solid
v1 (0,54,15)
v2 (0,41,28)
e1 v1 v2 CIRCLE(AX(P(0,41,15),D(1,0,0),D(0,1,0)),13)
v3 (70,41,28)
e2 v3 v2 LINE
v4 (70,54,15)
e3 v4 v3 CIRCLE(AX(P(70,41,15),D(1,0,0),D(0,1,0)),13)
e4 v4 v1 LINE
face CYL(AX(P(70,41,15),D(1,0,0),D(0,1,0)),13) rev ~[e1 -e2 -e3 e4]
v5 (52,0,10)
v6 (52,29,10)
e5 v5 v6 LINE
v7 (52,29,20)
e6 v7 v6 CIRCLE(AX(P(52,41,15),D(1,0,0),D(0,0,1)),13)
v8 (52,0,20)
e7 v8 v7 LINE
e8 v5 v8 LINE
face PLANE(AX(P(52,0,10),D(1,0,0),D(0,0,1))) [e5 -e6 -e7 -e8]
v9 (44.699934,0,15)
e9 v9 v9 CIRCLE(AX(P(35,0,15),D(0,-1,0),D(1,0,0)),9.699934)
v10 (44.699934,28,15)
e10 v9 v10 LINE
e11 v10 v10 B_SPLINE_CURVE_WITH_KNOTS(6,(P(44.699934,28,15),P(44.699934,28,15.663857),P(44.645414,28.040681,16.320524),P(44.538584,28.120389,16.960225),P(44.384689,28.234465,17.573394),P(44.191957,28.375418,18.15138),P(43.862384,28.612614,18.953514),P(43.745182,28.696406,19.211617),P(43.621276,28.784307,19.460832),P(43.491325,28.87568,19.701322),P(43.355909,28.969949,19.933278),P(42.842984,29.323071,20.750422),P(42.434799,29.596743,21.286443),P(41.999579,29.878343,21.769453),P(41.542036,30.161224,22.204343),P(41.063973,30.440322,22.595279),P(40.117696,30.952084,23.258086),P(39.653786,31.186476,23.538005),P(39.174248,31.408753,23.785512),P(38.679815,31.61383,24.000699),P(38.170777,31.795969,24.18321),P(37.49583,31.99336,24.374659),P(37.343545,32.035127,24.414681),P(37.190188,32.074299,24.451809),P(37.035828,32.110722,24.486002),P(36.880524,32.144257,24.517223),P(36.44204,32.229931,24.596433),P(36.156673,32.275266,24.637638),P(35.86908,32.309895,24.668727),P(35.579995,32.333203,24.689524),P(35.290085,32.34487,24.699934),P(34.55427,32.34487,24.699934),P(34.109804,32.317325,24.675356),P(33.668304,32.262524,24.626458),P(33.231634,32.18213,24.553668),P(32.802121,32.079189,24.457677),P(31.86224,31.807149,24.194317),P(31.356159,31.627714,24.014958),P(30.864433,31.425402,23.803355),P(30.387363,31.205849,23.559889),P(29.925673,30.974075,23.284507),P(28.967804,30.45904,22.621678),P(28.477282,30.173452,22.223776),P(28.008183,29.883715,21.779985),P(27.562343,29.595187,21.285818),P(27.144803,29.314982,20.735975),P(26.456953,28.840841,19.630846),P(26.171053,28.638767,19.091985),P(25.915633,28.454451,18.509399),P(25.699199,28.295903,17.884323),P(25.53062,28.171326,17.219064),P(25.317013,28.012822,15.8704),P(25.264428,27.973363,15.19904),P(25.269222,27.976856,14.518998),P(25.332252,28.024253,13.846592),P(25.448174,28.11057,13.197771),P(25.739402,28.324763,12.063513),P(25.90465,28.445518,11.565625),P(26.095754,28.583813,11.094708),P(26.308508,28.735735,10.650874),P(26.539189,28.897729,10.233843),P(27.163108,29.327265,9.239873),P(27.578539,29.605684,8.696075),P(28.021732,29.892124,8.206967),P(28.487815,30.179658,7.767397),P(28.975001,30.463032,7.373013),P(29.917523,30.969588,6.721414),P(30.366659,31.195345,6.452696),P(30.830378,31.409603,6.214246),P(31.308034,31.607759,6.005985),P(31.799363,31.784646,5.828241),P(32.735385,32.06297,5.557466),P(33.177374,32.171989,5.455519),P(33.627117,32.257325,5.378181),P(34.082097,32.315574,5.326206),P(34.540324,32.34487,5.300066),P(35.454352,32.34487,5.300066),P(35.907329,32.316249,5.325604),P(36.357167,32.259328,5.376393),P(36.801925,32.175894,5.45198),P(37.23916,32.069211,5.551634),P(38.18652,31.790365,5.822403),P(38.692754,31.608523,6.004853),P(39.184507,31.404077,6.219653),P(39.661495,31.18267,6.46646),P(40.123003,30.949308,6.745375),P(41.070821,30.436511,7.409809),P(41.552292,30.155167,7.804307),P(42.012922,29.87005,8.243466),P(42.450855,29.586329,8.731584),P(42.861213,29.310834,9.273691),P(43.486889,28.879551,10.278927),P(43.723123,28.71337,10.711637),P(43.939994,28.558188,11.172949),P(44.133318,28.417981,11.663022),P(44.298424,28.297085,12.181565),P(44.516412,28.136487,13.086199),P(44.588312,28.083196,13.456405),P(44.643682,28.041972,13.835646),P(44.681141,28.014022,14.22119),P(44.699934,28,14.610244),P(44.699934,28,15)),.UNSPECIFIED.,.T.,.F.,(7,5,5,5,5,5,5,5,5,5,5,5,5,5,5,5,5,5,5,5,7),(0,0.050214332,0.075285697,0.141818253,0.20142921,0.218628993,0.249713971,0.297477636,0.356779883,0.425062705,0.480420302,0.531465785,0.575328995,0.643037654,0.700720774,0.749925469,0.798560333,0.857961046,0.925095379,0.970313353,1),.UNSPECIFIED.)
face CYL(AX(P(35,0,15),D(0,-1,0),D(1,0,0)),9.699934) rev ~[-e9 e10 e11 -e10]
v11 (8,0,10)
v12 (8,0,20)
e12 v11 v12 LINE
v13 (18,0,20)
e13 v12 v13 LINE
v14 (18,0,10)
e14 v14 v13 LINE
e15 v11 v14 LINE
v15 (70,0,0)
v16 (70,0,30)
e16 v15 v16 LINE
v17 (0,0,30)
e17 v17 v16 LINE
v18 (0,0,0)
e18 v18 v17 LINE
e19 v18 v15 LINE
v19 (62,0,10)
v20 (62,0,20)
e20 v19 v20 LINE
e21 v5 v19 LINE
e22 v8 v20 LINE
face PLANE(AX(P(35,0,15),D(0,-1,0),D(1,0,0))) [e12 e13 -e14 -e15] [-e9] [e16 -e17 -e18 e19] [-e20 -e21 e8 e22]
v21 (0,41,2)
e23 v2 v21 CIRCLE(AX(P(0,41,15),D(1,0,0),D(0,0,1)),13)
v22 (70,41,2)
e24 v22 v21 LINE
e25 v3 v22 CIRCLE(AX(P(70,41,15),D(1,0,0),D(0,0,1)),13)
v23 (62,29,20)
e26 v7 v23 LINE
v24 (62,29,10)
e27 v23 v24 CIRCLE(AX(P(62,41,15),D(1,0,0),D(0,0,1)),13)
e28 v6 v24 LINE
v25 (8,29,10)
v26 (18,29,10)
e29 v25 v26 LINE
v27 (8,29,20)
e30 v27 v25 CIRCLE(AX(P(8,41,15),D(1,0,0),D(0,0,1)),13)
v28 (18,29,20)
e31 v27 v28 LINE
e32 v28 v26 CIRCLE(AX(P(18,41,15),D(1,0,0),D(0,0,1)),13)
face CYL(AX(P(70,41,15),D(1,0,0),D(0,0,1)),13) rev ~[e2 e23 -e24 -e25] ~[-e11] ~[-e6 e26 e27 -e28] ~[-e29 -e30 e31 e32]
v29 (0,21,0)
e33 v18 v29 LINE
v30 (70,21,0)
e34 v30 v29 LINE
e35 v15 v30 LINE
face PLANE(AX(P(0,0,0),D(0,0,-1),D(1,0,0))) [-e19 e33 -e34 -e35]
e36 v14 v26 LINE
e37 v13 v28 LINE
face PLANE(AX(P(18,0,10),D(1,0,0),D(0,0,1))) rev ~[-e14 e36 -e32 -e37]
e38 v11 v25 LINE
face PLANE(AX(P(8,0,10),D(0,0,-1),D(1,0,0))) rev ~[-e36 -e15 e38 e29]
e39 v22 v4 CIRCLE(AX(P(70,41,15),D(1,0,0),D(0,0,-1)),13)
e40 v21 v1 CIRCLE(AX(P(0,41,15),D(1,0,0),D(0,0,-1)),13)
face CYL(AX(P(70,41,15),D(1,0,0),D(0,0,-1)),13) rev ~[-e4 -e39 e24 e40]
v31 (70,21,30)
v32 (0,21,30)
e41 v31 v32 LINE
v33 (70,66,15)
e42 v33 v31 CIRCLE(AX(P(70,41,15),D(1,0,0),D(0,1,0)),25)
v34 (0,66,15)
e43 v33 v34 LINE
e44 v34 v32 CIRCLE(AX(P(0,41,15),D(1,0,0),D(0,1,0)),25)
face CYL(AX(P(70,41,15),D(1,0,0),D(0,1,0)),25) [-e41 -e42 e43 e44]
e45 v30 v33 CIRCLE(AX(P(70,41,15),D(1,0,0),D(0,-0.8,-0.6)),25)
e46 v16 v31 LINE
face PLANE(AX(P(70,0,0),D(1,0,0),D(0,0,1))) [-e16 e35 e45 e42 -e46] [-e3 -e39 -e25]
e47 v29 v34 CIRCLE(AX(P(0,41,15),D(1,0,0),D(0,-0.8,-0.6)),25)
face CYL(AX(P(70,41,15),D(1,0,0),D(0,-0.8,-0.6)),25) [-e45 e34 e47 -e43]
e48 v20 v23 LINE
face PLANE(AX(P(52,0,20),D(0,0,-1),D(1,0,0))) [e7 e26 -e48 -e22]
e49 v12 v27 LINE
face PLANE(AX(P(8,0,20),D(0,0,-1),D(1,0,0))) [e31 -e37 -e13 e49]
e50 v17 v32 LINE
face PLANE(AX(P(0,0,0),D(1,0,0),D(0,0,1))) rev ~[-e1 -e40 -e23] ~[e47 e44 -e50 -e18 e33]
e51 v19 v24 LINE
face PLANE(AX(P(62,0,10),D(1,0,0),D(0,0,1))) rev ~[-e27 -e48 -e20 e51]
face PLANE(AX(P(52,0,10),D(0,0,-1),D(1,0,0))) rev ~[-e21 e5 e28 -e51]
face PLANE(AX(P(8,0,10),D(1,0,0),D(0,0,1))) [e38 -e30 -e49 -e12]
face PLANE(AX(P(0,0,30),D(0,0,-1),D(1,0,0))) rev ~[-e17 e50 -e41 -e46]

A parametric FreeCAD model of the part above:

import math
import FreeCAD as App
import Part
import Sketcher

V = App.Vector


def add_polygon(sketch, points):
    """Adds a closed chain of lines whose ends are joined by coincident constraints."""
    first, n = sketch.GeometryCount, len(points)
    for a, b in zip(points, points[1:] + points[:1]):
        sketch.addGeometry(Part.LineSegment(App.Vector(*a, 0), App.Vector(*b, 0)), False)
    for i in range(n):
        sketch.addConstraint(Sketcher.Constraint("Coincident", first + i, 2, first + (i + 1) % n, 1))

doc = App.newDocument("Part")
body = doc.addObject("PartDesign::Body", "Body")

sketch1 = doc.addObject("Sketcher::SketchObject", "Sketch")
body.addObject(sketch1)
sketch1.AttachmentSupport = (doc.XZ_Plane, [""])
sketch1.MapMode = "FlatFace"
add_polygon(sketch1, [(0, 30), (0, 0), (70, 0), (70, 30)])
sketch1.addConstraint([
    Sketcher.Constraint("Vertical", 0),
    Sketcher.Constraint("Horizontal", 1),
    Sketcher.Constraint("Vertical", 2),
    Sketcher.Constraint("Horizontal", 3),
    Sketcher.Constraint("Coincident", 0, 2, -1, 1),
    Sketcher.Constraint("DistanceX", 1, 1, 1, 2, 70.0),
    Sketcher.Constraint("DistanceY", 0, 2, 0, 1, 30.0),
])
pad1 = doc.addObject("PartDesign::Pad", "Pad")
body.addObject(pad1)
pad1.Profile = sketch1
pad1.Length = 41
pad1.Reversed = True

sketch2 = doc.addObject("Sketcher::SketchObject", "Sketch001")
body.addObject(sketch2)
sketch2.AttachmentSupport = (doc.XZ_Plane, [""])
sketch2.MapMode = "FlatFace"
add_polygon(sketch2, [(8, 20), (8, 10), (18, 10), (18, 20)])
sketch2.addGeometry(Part.Circle(V(35, 15, 0), V(0, 0, 1), 10), False)
add_polygon(sketch2, [(52, 20), (52, 10), (62, 10), (62, 20)])
sketch2.addConstraint([
    Sketcher.Constraint("Vertical", 0),
    Sketcher.Constraint("Horizontal", 1),
    Sketcher.Constraint("Vertical", 2),
    Sketcher.Constraint("Horizontal", 3),
    Sketcher.Constraint("Vertical", 5),
    Sketcher.Constraint("Horizontal", 6),
    Sketcher.Constraint("Vertical", 7),
    Sketcher.Constraint("Horizontal", 8),
    Sketcher.Constraint("Horizontal", 1, 2, 5, 2),
    Sketcher.Constraint("Horizontal", 3, 2, 7, 2),
    Sketcher.Constraint("Equal", 3, 6),
    Sketcher.Constraint("Equal", 8, 0),
    Sketcher.Constraint("DistanceX", 1, 1, 1, 2, 10.0),
    Sketcher.Constraint("DistanceX", -1, 1, 4, 3, 35.0),
    Sketcher.Constraint("DistanceY", -1, 1, 4, 3, 15.0),
    Sketcher.Constraint("DistanceX", -1, 1, 0, 2, 8.0),
    Sketcher.Constraint("DistanceY", -1, 1, 0, 2, 10.0),
    Sketcher.Constraint("DistanceX", -1, 1, 5, 2, 52.0),
    Sketcher.Constraint("Diameter", 4, 19.399868),
])
pocket1 = doc.addObject("PartDesign::Pocket", "Pocket")
body.addObject(pocket1)
pocket1.Profile = sketch2
pocket1.Length = 41

sketch3 = doc.addObject("Sketcher::SketchObject", "Sketch002")
body.addObject(sketch3)
sketch3.AttachmentSupport = (doc.YZ_Plane, [""])
sketch3.MapMode = "FlatFace"
sketch3.AttachmentOffset = App.Placement(V(0, 0, 70), App.Rotation())
sketch3.addGeometry([
    Part.ArcOfCircle(Part.Circle(V(41, 15, 0), V(0, 0, 1), 13), math.radians(90), math.radians(270)),
    Part.LineSegment(V(41, 2, 0), V(41, 0, 0)),
    Part.LineSegment(V(41, 0, 0), V(21, 0, 0)),
    Part.ArcOfCircle(Part.Circle(V(41, 15, 0), V(0, 0, 1), 25), math.radians(-143), math.radians(0)),
    Part.ArcOfCircle(Part.Circle(V(41, 15, 0), V(0, 0, 1), 25), math.radians(0), math.radians(143)),
    Part.LineSegment(V(21, 30, 0), V(41, 30, 0)),
    Part.LineSegment(V(41, 30, 0), V(41, 28, 0)),
], False)
sketch3.addConstraint([
    Sketcher.Constraint("Coincident", 0, 2, 1, 1),
    Sketcher.Constraint("Coincident", 1, 2, 2, 1),
    Sketcher.Constraint("Coincident", 2, 2, 3, 1),
    Sketcher.Constraint("Tangent", 3, 2, 4, 1),
    Sketcher.Constraint("Coincident", 4, 2, 5, 1),
    Sketcher.Constraint("Coincident", 5, 2, 6, 1),
    Sketcher.Constraint("Coincident", 6, 2, 0, 1),
    Sketcher.Constraint("Vertical", 1),
    Sketcher.Constraint("Horizontal", 2),
    Sketcher.Constraint("Horizontal", 5),
    Sketcher.Constraint("Vertical", 6),
    Sketcher.Constraint("Coincident", 3, 3, 0, 3),
    Sketcher.Constraint("Equal", 3, 4),
    Sketcher.Constraint("PointOnObject", 1, 2, -1),
    Sketcher.Constraint("Horizontal", 4, 3, 3, 2),
    Sketcher.Constraint("Vertical", 4, 3, 0, 2),
    Sketcher.Constraint("Vertical", 2, 2, 4, 2),
    Sketcher.Constraint("Vertical", 1, 2, 5, 2),
    Sketcher.Constraint("Radius", 0, 13.0),
    Sketcher.Constraint("Radius", 3, 25.0),
    Sketcher.Constraint("DistanceX", 2, 2, 2, 1, 20.0),
    Sketcher.Constraint("DistanceX", -1, 1, 0, 3, 41.0),
])
pad2 = doc.addObject("PartDesign::Pad", "Pad001")
body.addObject(pad2)
pad2.Profile = sketch3
pad2.Length = 70
pad2.Reversed = True

sketch4 = doc.addObject("Sketcher::SketchObject", "Sketch003")
body.addObject(sketch4)
sketch4.AttachmentSupport = (doc.YZ_Plane, [""])
sketch4.MapMode = "FlatFace"
sketch4.AttachmentOffset = App.Placement(V(0, 0, 70), App.Rotation())
sketch4.addGeometry([
    Part.ArcOfCircle(Part.Circle(V(41, 15, 0), V(0, 0, 1), 13), math.radians(0), math.radians(90)),
    Part.ArcOfCircle(Part.Circle(V(41, 15, 0), V(0, 0, 1), 13), math.radians(90), math.radians(270)),
    Part.ArcOfCircle(Part.Circle(V(41, 15, 0), V(0, 0, 1), 13), math.radians(-90), math.radians(0)),
], False)
sketch4.addConstraint([
    Sketcher.Constraint("Tangent", 0, 2, 1, 1),
    Sketcher.Constraint("Tangent", 1, 2, 2, 1),
    Sketcher.Constraint("Tangent", 2, 2, 0, 1),
    Sketcher.Constraint("Horizontal", 1, 3, 2, 2),
    Sketcher.Constraint("Vertical", 2, 3, 0, 2),
    Sketcher.Constraint("Vertical", 0, 2, 1, 2),
    Sketcher.Constraint("Radius", 0, 13.0),
    Sketcher.Constraint("DistanceX", -1, 1, 0, 3, 41.0),
    Sketcher.Constraint("DistanceY", -1, 1, 0, 3, 15.0),
])
pocket2 = doc.addObject("PartDesign::Pocket", "Pocket001")
body.addObject(pocket2)
pocket2.Profile = sketch4
pocket2.Length = 70

doc.recompute()
